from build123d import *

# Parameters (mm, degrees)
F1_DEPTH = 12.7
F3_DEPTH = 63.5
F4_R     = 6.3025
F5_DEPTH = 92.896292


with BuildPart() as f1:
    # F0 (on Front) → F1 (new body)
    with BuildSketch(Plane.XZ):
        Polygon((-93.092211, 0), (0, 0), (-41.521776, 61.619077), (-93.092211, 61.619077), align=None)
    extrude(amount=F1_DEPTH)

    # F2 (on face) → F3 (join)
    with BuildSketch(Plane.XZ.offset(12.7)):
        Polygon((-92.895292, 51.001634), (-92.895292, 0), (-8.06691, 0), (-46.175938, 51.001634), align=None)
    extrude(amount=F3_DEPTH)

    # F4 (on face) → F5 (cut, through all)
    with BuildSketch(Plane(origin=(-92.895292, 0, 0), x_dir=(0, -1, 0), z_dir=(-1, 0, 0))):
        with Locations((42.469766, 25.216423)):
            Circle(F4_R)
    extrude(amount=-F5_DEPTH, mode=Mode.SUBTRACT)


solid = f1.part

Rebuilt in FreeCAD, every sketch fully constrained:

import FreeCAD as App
import Part
import Sketcher
Q = App.Units.Quantity


def add_polygon(sketch, points):
    """Adds a closed chain of lines whose ends are joined by coincident constraints."""
    first, n = sketch.GeometryCount, len(points)
    for a, b in zip(points, points[1:] + points[:1]):
        sketch.addGeometry(Part.LineSegment(App.Vector(*a, 0), App.Vector(*b, 0)), False)
    for i in range(n):
        sketch.addConstraint(Sketcher.Constraint("Coincident", first + i, 2, first + (i + 1) % n, 1))

doc = App.newDocument("Part")
params = doc.addObject("Spreadsheet::Sheet", "Params")
for row, (alias, value) in enumerate([
    ("pad1_length", "0.5 in"),
    ("pad2_length", "2.5 in"),
], start=1):
    params.set(f"A{row}", alias)
    params.set(f"B{row}", "=" + value)
    params.setAlias(f"B{row}", alias)

body = doc.addObject("PartDesign::Body", "Body")

# Sketch on XZ plane
sketch1 = body.newObject("Sketcher::SketchObject", "Sketch")
sketch1.AttachmentSupport = (doc.getObject("XZ_Plane"), [""])
sketch1.MapMode = "FlatFace"
add_polygon(sketch1, [(-93, 0), (0, 0), (-42, 62), (-93, 62)])  # lines 0-3
sketch1.addConstraint([
    Sketcher.Constraint("Horizontal", 0),
    Sketcher.Constraint("Horizontal", 2),
    Sketcher.Constraint("Vertical", 3),
    Sketcher.Constraint("Coincident", 0, 2, -1, 1),
    Sketcher.Constraint("DistanceX", 0, 1, 0, 2, Q("93.092211 mm")),
    Sketcher.Constraint("Distance", 1, Q("74.30322 mm")),
    Sketcher.Constraint("DistanceX", 2, 2, 2, 1, Q("51.570435 mm")),
])
pad1 = body.newObject("PartDesign::Pad", "Pad")
pad1.Profile = sketch1
pad1.setExpression("Length", "Params.pad1_length")

# Sketch on XZ plane
sketch2 = body.newObject("Sketcher::SketchObject", "Sketch001")
sketch2.AttachmentSupport = (doc.getObject("XZ_Plane"), [""])
sketch2.MapMode = "FlatFace"
sketch2.AttachmentOffset = App.Placement(App.Vector(0, 0, 0.5 * 25.4), App.Rotation())
add_polygon(sketch2, [(-93, 51), (-93, 0), (-8, 0), (-46, 51)])  # lines 0-3
sketch2.addConstraint([
    Sketcher.Constraint("Vertical", 0),
    Sketcher.Constraint("Horizontal", 1),
    Sketcher.Constraint("Horizontal", 3),
    Sketcher.Constraint("PointOnObject", 0, 2, -1),
    Sketcher.Constraint("DistanceX", 1, 1, 1, 2, Q("3.3397001 in")),
    Sketcher.Constraint("DistanceX", 3, 2, 3, 1, Q("46.719354 mm")),
    Sketcher.Constraint("DistanceY", 0, 2, 0, 1, Q("51.001634 mm")),
    Sketcher.Constraint("DistanceX", 0, 2, -1, 1, Q("92.895292 mm")),
])
pad2 = body.newObject("PartDesign::Pad", "Pad001")
pad2.Profile = sketch2
pad2.setExpression("Length", "Params.pad2_length")

# Sketch on YZ plane
sketch3 = body.newObject("Sketcher::SketchObject", "Sketch002")
sketch3.AttachmentSupport = (doc.getObject("YZ_Plane"), [""])
sketch3.MapMode = "FlatFace"
sketch3.AttachmentOffset = App.Placement(App.Vector(0, 0, -92.895292), App.Rotation())
sketch3.addGeometry(Part.Circle(App.Vector(-42, 25, 0), App.Vector(0, 0, 1), 6), False)
sketch3.addConstraint([
    Sketcher.Constraint("Diameter", 0, Q("12.605 mm")),
    Sketcher.Constraint("DistanceX", 0, 3, -1, 1, Q("42.469766 mm")),
    Sketcher.Constraint("DistanceY", -1, 1, 0, 3, Q("25.216423 mm")),
])
pocket1 = body.newObject("PartDesign::Pocket", "Pocket")
pocket1.Profile = sketch3
pocket1.Type = "ThroughAll"
pocket1.Reversed = True

doc.recompute()
